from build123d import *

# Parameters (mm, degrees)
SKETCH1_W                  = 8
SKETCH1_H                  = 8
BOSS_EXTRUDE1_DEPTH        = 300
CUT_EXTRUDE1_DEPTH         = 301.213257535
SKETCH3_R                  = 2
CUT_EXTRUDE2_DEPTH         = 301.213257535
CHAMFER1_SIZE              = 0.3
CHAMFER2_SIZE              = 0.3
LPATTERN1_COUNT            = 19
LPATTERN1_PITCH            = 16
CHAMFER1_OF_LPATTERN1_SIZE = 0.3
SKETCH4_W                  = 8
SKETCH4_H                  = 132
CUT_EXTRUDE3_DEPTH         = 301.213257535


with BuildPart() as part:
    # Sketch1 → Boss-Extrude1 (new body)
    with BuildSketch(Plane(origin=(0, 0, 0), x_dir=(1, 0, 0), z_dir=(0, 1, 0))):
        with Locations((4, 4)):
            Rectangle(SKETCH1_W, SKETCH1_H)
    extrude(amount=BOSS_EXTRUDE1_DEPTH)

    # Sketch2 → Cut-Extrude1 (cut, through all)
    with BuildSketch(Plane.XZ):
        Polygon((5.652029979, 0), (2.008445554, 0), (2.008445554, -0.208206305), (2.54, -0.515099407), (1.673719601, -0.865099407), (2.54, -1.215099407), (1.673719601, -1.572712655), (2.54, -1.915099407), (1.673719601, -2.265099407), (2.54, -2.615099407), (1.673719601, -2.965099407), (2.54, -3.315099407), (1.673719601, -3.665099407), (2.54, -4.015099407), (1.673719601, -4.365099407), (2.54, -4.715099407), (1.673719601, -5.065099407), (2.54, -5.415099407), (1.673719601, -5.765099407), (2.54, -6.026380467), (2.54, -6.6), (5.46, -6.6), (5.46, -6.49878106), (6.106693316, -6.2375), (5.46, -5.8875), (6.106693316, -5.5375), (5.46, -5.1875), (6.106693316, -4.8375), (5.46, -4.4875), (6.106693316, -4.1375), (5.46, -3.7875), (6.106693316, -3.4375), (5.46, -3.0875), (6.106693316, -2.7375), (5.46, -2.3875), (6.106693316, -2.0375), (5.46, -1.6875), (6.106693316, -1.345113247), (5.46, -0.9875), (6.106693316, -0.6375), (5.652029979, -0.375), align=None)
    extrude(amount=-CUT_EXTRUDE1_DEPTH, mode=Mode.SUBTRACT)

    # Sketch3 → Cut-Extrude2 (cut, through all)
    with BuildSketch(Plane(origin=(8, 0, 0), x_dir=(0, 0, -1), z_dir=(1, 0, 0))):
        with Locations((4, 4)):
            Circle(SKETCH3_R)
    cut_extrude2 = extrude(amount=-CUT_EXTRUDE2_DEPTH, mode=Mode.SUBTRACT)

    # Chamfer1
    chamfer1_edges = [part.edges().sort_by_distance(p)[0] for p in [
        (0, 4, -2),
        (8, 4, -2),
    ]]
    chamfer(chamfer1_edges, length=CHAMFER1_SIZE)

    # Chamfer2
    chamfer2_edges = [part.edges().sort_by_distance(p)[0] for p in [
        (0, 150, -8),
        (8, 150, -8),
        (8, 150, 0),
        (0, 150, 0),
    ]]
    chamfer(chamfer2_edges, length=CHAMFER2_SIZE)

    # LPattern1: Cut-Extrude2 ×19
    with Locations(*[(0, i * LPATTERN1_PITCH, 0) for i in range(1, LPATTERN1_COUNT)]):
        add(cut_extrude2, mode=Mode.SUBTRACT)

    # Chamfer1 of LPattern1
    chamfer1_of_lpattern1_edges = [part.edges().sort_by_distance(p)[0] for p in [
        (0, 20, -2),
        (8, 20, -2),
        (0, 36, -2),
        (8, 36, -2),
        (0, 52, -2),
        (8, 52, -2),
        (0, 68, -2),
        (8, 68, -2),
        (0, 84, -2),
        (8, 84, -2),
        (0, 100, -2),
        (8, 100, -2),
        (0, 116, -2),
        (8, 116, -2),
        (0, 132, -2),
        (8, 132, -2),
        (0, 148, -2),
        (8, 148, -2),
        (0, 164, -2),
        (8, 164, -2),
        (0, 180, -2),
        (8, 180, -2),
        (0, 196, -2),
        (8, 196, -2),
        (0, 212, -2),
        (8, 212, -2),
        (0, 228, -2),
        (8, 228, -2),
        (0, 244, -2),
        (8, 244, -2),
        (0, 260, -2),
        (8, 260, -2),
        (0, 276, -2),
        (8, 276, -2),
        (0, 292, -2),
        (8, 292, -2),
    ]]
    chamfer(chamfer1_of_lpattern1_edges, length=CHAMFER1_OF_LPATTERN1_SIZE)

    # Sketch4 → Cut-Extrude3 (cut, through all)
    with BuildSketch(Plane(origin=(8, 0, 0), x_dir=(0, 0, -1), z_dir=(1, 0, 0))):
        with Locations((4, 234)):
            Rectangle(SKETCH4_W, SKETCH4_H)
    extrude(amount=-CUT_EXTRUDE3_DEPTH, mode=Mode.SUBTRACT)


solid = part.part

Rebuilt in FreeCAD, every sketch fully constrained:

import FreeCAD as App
import Part
import Sketcher
Q = App.Units.Quantity


def edges_at(feature, points):
    """Names of the edges that pass closest to the given points."""
    edges = feature.Shape.Edges
    near = lambda p: min(range(len(edges)), key=lambda i: edges[i].distToShape(Part.Vertex(*p))[0])
    return sorted({f"Edge{near(p) + 1}" for p in points})


def add_polygon(sketch, points):
    """Adds a closed chain of lines whose ends are joined by coincident constraints."""
    first, n = sketch.GeometryCount, len(points)
    for a, b in zip(points, points[1:] + points[:1]):
        sketch.addGeometry(Part.LineSegment(App.Vector(*a, 0), App.Vector(*b, 0)), False)
    for i in range(n):
        sketch.addConstraint(Sketcher.Constraint("Coincident", first + i, 2, first + (i + 1) % n, 1))

doc = App.newDocument("Part")
params = doc.addObject("Spreadsheet::Sheet", "Params")
for row, (alias, value) in enumerate([
    ("sketch1_width", "8 mm"),
    ("pad1_length", "300 mm"),
    ("sketch2_width", "2.92 mm"),
    ("sketch3_diameter", "4 mm"),
    ("chamfer_size", "0.3 mm"),
    ("chamfer2_size", "0.3 mm"),
    ("linearpattern_pitch", "16 mm"),
    ("chamfer3_size", "0.3 mm"),
    ("sketch4_width", "132 mm"),
    ("sketch4_height", "8 mm"),
], start=1):
    params.set(f"A{row}", alias)
    params.set(f"B{row}", "=" + value)
    params.setAlias(f"B{row}", alias)

body = doc.addObject("PartDesign::Body", "Body")

sketch1 = body.newObject("Sketcher::SketchObject", "Sketch")
sketch1.AttachmentSupport = (doc.getObject("XZ_Plane"), [""])
sketch1.MapMode = "FlatFace"
add_polygon(sketch1, [(0, -8), (0, 0), (8, 0), (8, -8)])
sketch1.addConstraint([
    Sketcher.Constraint("Vertical", 0),
    Sketcher.Constraint("Horizontal", 1),
    Sketcher.Constraint("Vertical", 2),
    Sketcher.Constraint("Horizontal", 3),
    Sketcher.Constraint("Coincident", 0, 2, -1, 1),
    Sketcher.Constraint("Equal", 3, 0),
    Sketcher.Constraint("DistanceX", 1, 1, 1, 2, 8.0),
])
sketch1.setExpression("Constraints[10]", "Params.sketch1_width")
pad1 = body.newObject("PartDesign::Pad", "Pad")
pad1.Profile = sketch1
pad1.setExpression("Length", "Params.pad1_length")
pad1.Reversed = True

sketch2 = body.newObject("Sketcher::SketchObject", "Sketch001")
sketch2.AttachmentSupport = (doc.getObject("XZ_Plane"), [""])
sketch2.MapMode = "FlatFace"
add_polygon(sketch2, [(5.65, 0), (2.01, 0), (2.01, -0.21), (2.54, -0.52), (1.67, -0.87), (2.54, -1.22), (1.67, -1.57), (2.54, -1.92), (1.67, -2.27), (2.54, -2.62), (1.67, -2.97), (2.54, -3.32), (1.67, -3.67), (2.54, -4.02), (1.67, -4.37), (2.54, -4.72), (1.67, -5.07), (2.54, -5.42), (1.67, -5.77), (2.54, -6.03), (2.54, -6.6), (5.46, -6.6), (5.46, -6.5), (6.11, -6.24), (5.46, -5.89), (6.11, -5.54), (5.46, -5.19), (6.11, -4.84), (5.46, -4.49), (6.11, -4.14), (5.46, -3.79), (6.11, -3.44), (5.46, -3.09), (6.11, -2.74), (5.46, -2.39), (6.11, -2.04), (5.46, -1.69), (6.11, -1.35), (5.46, -0.99), (6.11, -0.64), (5.65, -0.38)])
sketch2.addConstraint([
    Sketcher.Constraint("Horizontal", 0),
    Sketcher.Constraint("Vertical", 1),
    Sketcher.Constraint("Vertical", 19),
    Sketcher.Constraint("Horizontal", 20),
    Sketcher.Constraint("Vertical", 21),
    Sketcher.Constraint("Vertical", 40),
    Sketcher.Constraint("PointOnObject", 0, 2, -1),
    Sketcher.Constraint("Parallel", 3, 7),
    Sketcher.Constraint("Parallel", 4, 8),
    Sketcher.Constraint("Parallel", 7, 9),
    Sketcher.Constraint("Parallel", 8, 10),
    Sketcher.Constraint("Parallel", 9, 11),
    Sketcher.Constraint("Parallel", 10, 12),
    Sketcher.Constraint("Parallel", 11, 13),
    Sketcher.Constraint("Parallel", 12, 14),
    Sketcher.Constraint("Parallel", 13, 15),
    Sketcher.Constraint("Parallel", 14, 16),
    Sketcher.Constraint("Parallel", 15, 17),
    Sketcher.Constraint("Parallel", 17, 22),
    Sketcher.Constraint("Parallel", 23, 25),
    Sketcher.Constraint("Parallel", 24, 26),
    Sketcher.Constraint("Parallel", 25, 27),
    Sketcher.Constraint("Parallel", 26, 28),
    Sketcher.Constraint("Parallel", 27, 29),
    Sketcher.Constraint("Parallel", 28, 30),
    Sketcher.Constraint("Parallel", 29, 31),
    Sketcher.Constraint("Parallel", 30, 32),
    Sketcher.Constraint("Parallel", 31, 33),
    Sketcher.Constraint("Parallel", 32, 34),
    Sketcher.Constraint("Parallel", 33, 35),
    Sketcher.Constraint("Parallel", 34, 38),
    Sketcher.Constraint("Parallel", 2, 39),
    Sketcher.Constraint("Vertical", 2, 2, 4, 2),
    Sketcher.Constraint("Vertical", 3, 2, 5, 2),
    Sketcher.Constraint("Vertical", 4, 2, 6, 2),
    Sketcher.Constraint("Vertical", 5, 2, 7, 2),
    Sketcher.Constraint("Vertical", 6, 2, 8, 2),
    Sketcher.Constraint("Vertical", 7, 2, 9, 2),
    Sketcher.Constraint("Vertical", 8, 2, 10, 2),
    Sketcher.Constraint("Vertical", 9, 2, 11, 2),
    Sketcher.Constraint("Vertical", 10, 2, 12, 2),
    Sketcher.Constraint("Vertical", 11, 2, 13, 2),
    Sketcher.Constraint("Vertical", 12, 2, 14, 2),
    Sketcher.Constraint("Vertical", 13, 2, 15, 2),
    Sketcher.Constraint("Vertical", 14, 2, 16, 2),
    Sketcher.Constraint("Vertical", 15, 2, 17, 2),
    Sketcher.Constraint("Vertical", 16, 2, 18, 2),
    Sketcher.Constraint("Vertical", 21, 2, 23, 2),
    Sketcher.Constraint("Vertical", 22, 2, 24, 2),
    Sketcher.Constraint("Vertical", 23, 2, 25, 2),
    Sketcher.Constraint("Vertical", 24, 2, 26, 2),
    Sketcher.Constraint("Vertical", 25, 2, 27, 2),
    Sketcher.Constraint("Vertical", 26, 2, 28, 2),
    Sketcher.Constraint("Vertical", 27, 2, 29, 2),
    Sketcher.Constraint("Vertical", 28, 2, 30, 2),
    Sketcher.Constraint("Vertical", 29, 2, 31, 2),
    Sketcher.Constraint("Vertical", 30, 2, 32, 2),
    Sketcher.Constraint("Vertical", 31, 2, 33, 2),
    Sketcher.Constraint("Vertical", 32, 2, 34, 2),
    Sketcher.Constraint("Vertical", 33, 2, 35, 2),
    Sketcher.Constraint("Vertical", 34, 2, 36, 2),
    Sketcher.Constraint("Vertical", 35, 2, 37, 2),
    Sketcher.Constraint("Vertical", 36, 2, 38, 2),
    Sketcher.Constraint("Equal", 3, 4),
    Sketcher.Constraint("Equal", 23, 24),
    Sketcher.Constraint("Angle", 2, Q("-30 deg")),
    Sketcher.Constraint("Angle", 3, Q("-158 deg")),
    Sketcher.Constraint("DistanceX", 20, 1, 20, 2, 2.92),
    Sketcher.Constraint("DistanceY", 19, 2, -1, 1, 6.6),
    Sketcher.Constraint("DistanceY", 4, 2, 2, 2, 0.7),
    Sketcher.Constraint("DistanceY", 6, 2, 4, 2, 0.7),
    Sketcher.Constraint("DistanceY", 22, 2, 24, 2, 0.7),
    Sketcher.Constraint("DistanceY", 35, 2, 37, 2, 0.7),
    Sketcher.Constraint("DistanceY", 40, 1, 40, 2, 0.375),
    Sketcher.Constraint("DistanceX", -1, 1, 2, 2, 2.54),
    Sketcher.Constraint("Distance", 39, 0.525),
    Sketcher.Constraint("DistanceY", 19, 2, 19, 1, 0.57362),
    Sketcher.Constraint("DistanceY", 21, 1, 21, 2, 0.101219),
    Sketcher.Constraint("DistanceY", 2, 2, -1, 1, 0.515099),
    Sketcher.Constraint("Distance", 6, 0.931488),
    Sketcher.Constraint("Distance", 36, 0.731738),
    Sketcher.Constraint("DistanceX", 0, 2, 0, 1, 3.643584),
])
sketch2.setExpression("Constraints[108]", "Params.sketch2_width")
pocket1 = body.newObject("PartDesign::Pocket", "Pocket")
pocket1.Profile = sketch2
pocket1.Type = "ThroughAll"

sketch3 = body.newObject("Sketcher::SketchObject", "Sketch002")
sketch3.AttachmentSupport = (doc.getObject("YZ_Plane"), [""])
sketch3.MapMode = "FlatFace"
sketch3.AttachmentOffset = App.Placement(App.Vector(0, 0, 8), App.Rotation())
sketch3.addGeometry(Part.Circle(App.Vector(4, -4, 0), App.Vector(0, 0, 1), 2), False)
sketch3.addConstraint([
    Sketcher.Constraint("Diameter", 0, 4.0),
    Sketcher.Constraint("DistanceX", -1, 1, 0, 3, 4.0),
    Sketcher.Constraint("DistanceY", 0, 3, -1, 1, 4.0),
])
sketch3.setExpression("Constraints[0]", "Params.sketch3_diameter")
pocket2 = body.newObject("PartDesign::Pocket", "Pocket001")
pocket2.Profile = sketch3
pocket2.Type = "ThroughAll"
doc.recompute()

chamfer = body.newObject("PartDesign::Chamfer", "Chamfer")
chamfer.Base = (pocket2, edges_at(pocket2, [(0, 4, -2), (8, 4, -2)]))
chamfer.setExpression("Size", "Params.chamfer_size")
doc.recompute()

chamfer2 = body.newObject("PartDesign::Chamfer", "Chamfer001")
chamfer2.Base = (chamfer, edges_at(chamfer, [
    (0, 150, -8),
    (8, 150, -8),
    (8, 150, 0),
    (0, 150, 0),
]))
chamfer2.setExpression("Size", "Params.chamfer2_size")
doc.recompute()

linearpattern = body.newObject("PartDesign::LinearPattern", "LinearPattern")
linearpattern.Originals = [pocket2]
linearpattern.Direction = (doc.getObject("Y_Axis"), [""])
linearpattern.Mode = "offset"
linearpattern.setExpression("Offset", "Params.linearpattern_pitch")
linearpattern.Occurrences = 19
body.Tip = linearpattern
doc.recompute()

chamfer3 = body.newObject("PartDesign::Chamfer", "Chamfer002")
chamfer3.Base = (linearpattern, edges_at(linearpattern, [
    (0, 20, -2),
    (8, 20, -2),
    (0, 36, -2),
    (8, 36, -2),
    (0, 52, -2),
    (8, 52, -2),
    (0, 68, -2),
    (8, 68, -2),
    (0, 84, -2),
    (8, 84, -2),
    (0, 100, -2),
    (8, 100, -2),
    (0, 116, -2),
    (8, 116, -2),
    (0, 132, -2),
    (8, 132, -2),
    (0, 148, -2),
    (8, 148, -2),
    (0, 164, -2),
    (8, 164, -2),
    (0, 180, -2),
    (8, 180, -2),
    (0, 196, -2),
    (8, 196, -2),
    (0, 212, -2),
    (8, 212, -2),
    (0, 228, -2),
    (8, 228, -2),
    (0, 244, -2),
    (8, 244, -2),
    (0, 260, -2),
    (8, 260, -2),
    (0, 276, -2),
    (8, 276, -2),
    (0, 292, -2),
    (8, 292, -2),
]))
chamfer3.setExpression("Size", "Params.chamfer3_size")

sketch4 = body.newObject("Sketcher::SketchObject", "Sketch003")
sketch4.AttachmentSupport = (doc.getObject("YZ_Plane"), [""])
sketch4.MapMode = "FlatFace"
sketch4.AttachmentOffset = App.Placement(App.Vector(0, 0, 8), App.Rotation())
add_polygon(sketch4, [(300, 0), (168, 0), (168, -8), (300, -8)])
sketch4.addConstraint([
    Sketcher.Constraint("Horizontal", 0),
    Sketcher.Constraint("Vertical", 1),
    Sketcher.Constraint("Horizontal", 2),
    Sketcher.Constraint("Vertical", 3),
    Sketcher.Constraint("PointOnObject", 0, 2, -1),
    Sketcher.Constraint("DistanceX", 0, 2, 0, 1, 132.0),
    Sketcher.Constraint("DistanceY", 1, 2, 1, 1, 8.0),
    Sketcher.Constraint("DistanceX", -1, 1, 0, 2, 168.0),
])
sketch4.setExpression("Constraints[9]", "Params.sketch4_width")
sketch4.setExpression("Constraints[10]", "Params.sketch4_height")
pocket3 = body.newObject("PartDesign::Pocket", "Pocket002")
pocket3.Profile = sketch4
pocket3.Type = "ThroughAll"

doc.recompute()
